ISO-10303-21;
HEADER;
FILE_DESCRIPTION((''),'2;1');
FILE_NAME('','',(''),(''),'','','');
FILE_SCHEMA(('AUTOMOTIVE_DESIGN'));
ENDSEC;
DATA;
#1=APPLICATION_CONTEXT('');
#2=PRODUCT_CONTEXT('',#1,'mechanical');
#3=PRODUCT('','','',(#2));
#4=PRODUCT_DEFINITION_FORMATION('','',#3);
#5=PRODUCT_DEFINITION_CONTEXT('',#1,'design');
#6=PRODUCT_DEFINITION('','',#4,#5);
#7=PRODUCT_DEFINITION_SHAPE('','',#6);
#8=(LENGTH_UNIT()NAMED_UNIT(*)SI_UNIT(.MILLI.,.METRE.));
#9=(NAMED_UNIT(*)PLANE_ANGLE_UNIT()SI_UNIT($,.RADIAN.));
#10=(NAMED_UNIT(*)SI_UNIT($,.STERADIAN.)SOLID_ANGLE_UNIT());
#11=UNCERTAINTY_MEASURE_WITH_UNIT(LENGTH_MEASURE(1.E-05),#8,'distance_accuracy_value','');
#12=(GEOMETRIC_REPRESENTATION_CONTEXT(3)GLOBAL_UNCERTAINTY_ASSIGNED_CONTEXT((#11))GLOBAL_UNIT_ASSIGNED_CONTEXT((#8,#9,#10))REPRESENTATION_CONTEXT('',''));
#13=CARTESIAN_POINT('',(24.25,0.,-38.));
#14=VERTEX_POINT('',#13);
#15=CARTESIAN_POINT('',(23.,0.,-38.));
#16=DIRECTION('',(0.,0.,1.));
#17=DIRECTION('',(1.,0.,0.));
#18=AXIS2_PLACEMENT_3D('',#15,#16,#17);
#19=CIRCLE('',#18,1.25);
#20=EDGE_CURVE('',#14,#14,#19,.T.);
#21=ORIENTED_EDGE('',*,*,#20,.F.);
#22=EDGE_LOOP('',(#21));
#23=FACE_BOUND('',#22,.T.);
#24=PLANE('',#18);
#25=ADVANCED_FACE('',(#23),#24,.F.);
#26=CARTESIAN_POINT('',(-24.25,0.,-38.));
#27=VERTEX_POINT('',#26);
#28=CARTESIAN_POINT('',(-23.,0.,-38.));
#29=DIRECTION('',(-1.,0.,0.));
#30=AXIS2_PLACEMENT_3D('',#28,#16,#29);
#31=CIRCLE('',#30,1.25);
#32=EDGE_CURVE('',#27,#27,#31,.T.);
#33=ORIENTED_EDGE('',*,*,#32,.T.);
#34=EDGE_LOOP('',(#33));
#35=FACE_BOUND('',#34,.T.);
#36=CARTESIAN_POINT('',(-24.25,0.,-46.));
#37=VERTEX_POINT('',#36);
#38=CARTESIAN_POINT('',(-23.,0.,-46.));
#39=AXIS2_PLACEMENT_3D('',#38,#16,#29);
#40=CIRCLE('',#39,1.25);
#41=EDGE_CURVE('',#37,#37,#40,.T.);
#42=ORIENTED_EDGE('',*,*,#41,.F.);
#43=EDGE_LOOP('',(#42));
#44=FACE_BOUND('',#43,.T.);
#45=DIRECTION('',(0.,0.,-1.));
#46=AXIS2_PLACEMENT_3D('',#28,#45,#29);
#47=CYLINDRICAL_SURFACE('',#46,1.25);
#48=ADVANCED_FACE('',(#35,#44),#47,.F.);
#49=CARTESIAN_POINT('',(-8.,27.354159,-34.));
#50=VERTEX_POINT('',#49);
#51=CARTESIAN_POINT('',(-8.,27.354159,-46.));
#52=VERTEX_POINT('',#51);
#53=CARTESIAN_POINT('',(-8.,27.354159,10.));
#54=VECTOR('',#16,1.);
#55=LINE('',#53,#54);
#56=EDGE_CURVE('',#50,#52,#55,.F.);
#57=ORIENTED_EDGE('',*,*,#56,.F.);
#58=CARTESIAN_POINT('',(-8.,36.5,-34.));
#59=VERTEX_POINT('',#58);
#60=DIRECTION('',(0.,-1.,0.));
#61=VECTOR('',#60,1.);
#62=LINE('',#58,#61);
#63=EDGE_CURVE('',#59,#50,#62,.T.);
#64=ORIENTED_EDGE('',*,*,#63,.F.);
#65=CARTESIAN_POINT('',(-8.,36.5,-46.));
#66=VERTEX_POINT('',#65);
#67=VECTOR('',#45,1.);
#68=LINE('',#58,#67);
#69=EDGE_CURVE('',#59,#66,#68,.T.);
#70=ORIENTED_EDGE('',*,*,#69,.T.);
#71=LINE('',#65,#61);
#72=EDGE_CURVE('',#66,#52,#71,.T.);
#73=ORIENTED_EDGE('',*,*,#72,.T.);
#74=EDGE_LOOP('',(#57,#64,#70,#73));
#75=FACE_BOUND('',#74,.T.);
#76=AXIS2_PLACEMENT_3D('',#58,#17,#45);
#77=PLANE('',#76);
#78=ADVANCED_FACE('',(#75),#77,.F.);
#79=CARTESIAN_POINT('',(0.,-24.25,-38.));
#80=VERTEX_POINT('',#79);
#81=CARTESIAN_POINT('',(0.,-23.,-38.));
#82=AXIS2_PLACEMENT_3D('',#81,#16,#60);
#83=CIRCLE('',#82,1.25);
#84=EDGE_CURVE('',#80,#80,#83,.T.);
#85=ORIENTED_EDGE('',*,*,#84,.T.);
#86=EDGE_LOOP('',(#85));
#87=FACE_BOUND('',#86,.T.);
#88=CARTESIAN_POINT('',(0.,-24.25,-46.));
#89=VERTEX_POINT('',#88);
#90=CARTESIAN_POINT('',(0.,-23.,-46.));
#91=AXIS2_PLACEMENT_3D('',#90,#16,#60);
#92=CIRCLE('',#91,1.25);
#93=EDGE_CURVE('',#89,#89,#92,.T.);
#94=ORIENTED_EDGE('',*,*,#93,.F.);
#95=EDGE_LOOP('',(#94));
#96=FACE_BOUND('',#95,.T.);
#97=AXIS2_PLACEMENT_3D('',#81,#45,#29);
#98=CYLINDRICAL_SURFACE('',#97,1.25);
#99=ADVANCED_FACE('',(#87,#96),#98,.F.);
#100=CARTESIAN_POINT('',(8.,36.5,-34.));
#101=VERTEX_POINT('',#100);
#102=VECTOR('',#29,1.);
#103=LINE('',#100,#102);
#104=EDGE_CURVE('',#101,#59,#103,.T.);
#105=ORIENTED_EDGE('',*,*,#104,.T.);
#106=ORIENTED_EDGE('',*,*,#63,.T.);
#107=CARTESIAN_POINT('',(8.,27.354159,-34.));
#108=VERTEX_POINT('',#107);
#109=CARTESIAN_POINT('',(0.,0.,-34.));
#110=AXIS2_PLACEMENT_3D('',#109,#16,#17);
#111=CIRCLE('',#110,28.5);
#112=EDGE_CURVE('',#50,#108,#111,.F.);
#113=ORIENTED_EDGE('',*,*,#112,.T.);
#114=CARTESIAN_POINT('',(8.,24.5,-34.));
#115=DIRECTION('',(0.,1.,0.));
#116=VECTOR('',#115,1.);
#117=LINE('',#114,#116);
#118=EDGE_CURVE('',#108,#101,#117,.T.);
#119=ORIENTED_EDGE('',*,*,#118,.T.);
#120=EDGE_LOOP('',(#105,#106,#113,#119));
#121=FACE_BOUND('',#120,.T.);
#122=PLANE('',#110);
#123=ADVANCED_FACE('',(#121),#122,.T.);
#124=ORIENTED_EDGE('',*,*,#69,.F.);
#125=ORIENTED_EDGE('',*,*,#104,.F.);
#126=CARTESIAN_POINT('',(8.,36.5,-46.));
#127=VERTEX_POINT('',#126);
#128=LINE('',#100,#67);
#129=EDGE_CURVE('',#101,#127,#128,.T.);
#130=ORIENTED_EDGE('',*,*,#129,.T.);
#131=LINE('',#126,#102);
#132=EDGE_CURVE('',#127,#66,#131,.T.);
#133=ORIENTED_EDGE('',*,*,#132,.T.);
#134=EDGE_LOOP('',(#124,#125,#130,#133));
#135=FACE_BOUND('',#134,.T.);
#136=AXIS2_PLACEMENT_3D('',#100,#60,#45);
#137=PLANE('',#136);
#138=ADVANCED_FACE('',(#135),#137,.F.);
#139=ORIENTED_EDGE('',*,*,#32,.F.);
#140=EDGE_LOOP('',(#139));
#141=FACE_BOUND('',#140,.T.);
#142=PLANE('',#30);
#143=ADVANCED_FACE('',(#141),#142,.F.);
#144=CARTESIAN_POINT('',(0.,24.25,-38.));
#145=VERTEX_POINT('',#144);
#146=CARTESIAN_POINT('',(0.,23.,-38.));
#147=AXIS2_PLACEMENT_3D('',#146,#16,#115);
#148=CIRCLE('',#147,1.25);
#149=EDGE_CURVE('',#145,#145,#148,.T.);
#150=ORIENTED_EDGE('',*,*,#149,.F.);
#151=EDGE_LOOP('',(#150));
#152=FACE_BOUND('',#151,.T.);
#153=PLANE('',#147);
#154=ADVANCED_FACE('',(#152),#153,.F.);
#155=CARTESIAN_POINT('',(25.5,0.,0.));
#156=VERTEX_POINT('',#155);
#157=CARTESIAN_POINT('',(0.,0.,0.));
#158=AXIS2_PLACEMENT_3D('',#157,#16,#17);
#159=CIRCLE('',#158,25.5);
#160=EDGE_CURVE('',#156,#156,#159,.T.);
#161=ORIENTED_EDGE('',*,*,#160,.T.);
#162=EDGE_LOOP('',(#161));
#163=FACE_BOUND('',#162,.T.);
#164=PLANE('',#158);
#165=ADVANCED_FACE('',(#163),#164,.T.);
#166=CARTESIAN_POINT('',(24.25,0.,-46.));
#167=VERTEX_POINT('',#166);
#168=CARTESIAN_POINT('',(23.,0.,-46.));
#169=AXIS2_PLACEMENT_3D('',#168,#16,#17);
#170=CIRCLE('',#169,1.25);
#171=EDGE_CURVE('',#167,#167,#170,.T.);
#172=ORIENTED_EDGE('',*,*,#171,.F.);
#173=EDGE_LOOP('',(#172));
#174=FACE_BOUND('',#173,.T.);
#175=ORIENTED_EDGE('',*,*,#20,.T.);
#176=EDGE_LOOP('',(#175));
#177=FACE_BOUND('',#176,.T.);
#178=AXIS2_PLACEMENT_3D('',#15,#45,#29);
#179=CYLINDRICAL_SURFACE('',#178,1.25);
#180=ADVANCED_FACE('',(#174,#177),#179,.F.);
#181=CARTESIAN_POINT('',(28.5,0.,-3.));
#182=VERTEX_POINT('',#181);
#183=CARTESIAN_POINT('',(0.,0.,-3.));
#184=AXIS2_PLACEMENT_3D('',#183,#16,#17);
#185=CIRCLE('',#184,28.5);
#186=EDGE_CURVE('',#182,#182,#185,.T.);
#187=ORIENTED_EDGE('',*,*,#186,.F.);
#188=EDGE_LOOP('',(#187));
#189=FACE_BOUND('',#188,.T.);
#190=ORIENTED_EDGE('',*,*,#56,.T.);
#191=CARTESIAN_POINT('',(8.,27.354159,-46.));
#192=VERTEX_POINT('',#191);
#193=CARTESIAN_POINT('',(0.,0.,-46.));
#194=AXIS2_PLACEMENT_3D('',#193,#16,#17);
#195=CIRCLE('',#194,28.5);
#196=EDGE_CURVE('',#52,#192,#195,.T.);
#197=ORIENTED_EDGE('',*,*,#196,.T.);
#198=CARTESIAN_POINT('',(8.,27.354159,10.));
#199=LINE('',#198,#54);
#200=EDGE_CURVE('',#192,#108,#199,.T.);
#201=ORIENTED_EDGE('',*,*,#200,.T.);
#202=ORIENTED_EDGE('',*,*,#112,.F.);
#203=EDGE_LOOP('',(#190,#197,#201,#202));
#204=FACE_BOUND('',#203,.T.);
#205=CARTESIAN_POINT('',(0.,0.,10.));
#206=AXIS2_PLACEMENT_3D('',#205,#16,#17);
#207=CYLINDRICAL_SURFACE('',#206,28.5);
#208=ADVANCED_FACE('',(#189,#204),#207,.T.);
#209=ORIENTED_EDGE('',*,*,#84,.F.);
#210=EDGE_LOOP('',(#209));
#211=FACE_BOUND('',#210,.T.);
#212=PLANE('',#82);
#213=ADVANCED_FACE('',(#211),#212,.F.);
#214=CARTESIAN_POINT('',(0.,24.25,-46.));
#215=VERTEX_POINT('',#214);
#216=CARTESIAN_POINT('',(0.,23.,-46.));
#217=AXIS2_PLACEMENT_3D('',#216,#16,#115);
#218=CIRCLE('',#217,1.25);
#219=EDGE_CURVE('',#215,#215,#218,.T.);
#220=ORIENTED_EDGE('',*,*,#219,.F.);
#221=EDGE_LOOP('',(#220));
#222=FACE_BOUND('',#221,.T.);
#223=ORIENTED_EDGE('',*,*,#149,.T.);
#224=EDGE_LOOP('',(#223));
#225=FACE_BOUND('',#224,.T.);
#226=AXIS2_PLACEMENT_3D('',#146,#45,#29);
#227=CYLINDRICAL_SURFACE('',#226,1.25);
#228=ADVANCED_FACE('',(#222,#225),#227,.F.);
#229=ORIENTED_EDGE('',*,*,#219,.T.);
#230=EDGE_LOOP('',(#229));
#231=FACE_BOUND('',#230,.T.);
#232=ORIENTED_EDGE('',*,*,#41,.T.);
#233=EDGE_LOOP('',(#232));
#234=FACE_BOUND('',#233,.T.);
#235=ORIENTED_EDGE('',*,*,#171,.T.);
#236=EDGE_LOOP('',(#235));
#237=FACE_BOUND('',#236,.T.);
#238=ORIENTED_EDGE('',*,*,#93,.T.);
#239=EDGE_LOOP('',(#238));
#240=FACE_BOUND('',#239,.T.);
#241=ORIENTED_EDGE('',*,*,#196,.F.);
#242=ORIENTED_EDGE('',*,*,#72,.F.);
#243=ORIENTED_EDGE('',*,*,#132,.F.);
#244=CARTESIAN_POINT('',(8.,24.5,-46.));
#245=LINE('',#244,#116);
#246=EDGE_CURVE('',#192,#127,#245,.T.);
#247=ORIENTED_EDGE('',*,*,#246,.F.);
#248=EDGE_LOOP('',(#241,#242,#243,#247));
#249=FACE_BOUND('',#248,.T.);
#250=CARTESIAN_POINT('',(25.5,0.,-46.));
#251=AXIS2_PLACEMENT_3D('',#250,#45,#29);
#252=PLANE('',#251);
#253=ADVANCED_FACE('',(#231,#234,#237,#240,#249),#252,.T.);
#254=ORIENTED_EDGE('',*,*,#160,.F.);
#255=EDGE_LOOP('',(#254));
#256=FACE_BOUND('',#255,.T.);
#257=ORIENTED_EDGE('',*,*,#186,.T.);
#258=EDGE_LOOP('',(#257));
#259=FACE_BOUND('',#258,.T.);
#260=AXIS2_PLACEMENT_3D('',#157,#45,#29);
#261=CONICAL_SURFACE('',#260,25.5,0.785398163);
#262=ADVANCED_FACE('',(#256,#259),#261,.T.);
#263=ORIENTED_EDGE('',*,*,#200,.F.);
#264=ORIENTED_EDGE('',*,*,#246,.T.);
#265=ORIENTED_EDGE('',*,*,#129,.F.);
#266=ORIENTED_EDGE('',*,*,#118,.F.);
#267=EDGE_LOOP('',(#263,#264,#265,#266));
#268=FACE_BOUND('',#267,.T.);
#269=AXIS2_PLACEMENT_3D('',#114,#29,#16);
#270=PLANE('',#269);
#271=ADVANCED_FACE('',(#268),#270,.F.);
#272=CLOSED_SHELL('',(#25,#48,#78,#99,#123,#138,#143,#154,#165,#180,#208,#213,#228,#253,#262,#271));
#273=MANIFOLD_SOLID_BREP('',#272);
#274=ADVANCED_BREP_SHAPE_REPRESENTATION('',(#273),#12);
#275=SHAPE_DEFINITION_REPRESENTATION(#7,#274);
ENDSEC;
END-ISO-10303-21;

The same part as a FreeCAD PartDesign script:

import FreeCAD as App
import Part
import Sketcher
Q = App.Units.Quantity

doc = App.newDocument("Part")
params = doc.addObject("Spreadsheet::Sheet", "Params")
for row, (alias, value) in enumerate([
    ("sketch1_height", "43 mm"),
    ("sketch1_height2", "46 mm"),
    ("sketch1_width", "25.5 mm"),
    ("revolution_angle", "360 deg"),
    ("sketch2_diameter", "2.5 mm"),
    ("pocket1_length", "8 mm"),
    ("sketch3_width", "16 mm"),
    ("sketch3_height", "12 mm"),
    ("pad1_length", "12 mm"),
], start=1):
    params.set(f"A{row}", alias)
    params.set(f"B{row}", "=" + value)
    params.setAlias(f"B{row}", alias)

body = doc.addObject("PartDesign::Body", "Body")

# Sketch on XZ plane
sketch1 = body.newObject("Sketcher::SketchObject", "Sketch")
sketch1.AttachmentSupport = (doc.getObject("XZ_Plane"), [""])
sketch1.MapMode = "FlatFace"
sketch1.addGeometry([
    Part.LineSegment(App.Vector(0, 0, 0), App.Vector(25.5, 0, 0)),  # 0
    Part.LineSegment(App.Vector(25.5, 0, 0), App.Vector(28.5, -3, 0)),  # 1
    Part.LineSegment(App.Vector(28.5, -3, 0), App.Vector(28.5, -46, 0)),  # 2
    Part.LineSegment(App.Vector(28.5, -46, 0), App.Vector(0, -46, 0)),  # 3
    Part.LineSegment(App.Vector(0, -46, 0), App.Vector(0, 0, 0)),  # 4
], False)
sketch1.addConstraint([
    Sketcher.Constraint("Coincident", 0, 2, 1, 1),
    Sketcher.Constraint("Coincident", 1, 2, 2, 1),
    Sketcher.Constraint("Coincident", 2, 2, 3, 1),
    Sketcher.Constraint("Coincident", 3, 2, 4, 1),
    Sketcher.Constraint("Coincident", 4, 2, 0, 1),
    Sketcher.Constraint("Horizontal", 0),
    Sketcher.Constraint("Vertical", 2),
    Sketcher.Constraint("Horizontal", 3),
    Sketcher.Constraint("Vertical", 4),
    Sketcher.Constraint("Coincident", 4, 2, -1, 1),
    Sketcher.Constraint("DistanceY", 2, 2, 2, 1, 43.0),
    Sketcher.Constraint("DistanceY", 4, 1, 4, 2, 46.0),
    Sketcher.Constraint("Angle", 1, Q("-45 deg")),
    Sketcher.Constraint("DistanceX", 0, 1, 0, 2, 25.5),
])
sketch1.setExpression("Constraints[10]", "Params.sketch1_height")
sketch1.setExpression("Constraints[11]", "Params.sketch1_height2")
sketch1.setExpression("Constraints[13]", "Params.sketch1_width")
revolution = body.newObject("PartDesign::Revolution", "Revolution")
revolution.Profile = sketch1
revolution.ReferenceAxis = (sketch1, ["V_Axis"])
revolution.setExpression("Angle", "Params.revolution_angle")

# Sketch on XY plane
sketch2 = body.newObject("Sketcher::SketchObject", "Sketch001")
sketch2.AttachmentSupport = (doc.getObject("XY_Plane"), [""])
sketch2.MapMode = "FlatFace"
sketch2.AttachmentOffset = App.Placement(App.Vector(0, 0, -46), App.Rotation())
sketch2.addGeometry(Part.Circle(App.Vector(23, 0, 0), App.Vector(0, 0, 1), 1.2), False)
sketch2.addConstraint([
    Sketcher.Constraint("PointOnObject", 0, 3, -1),
    Sketcher.Constraint("Diameter", 0, 2.5),
    Sketcher.Constraint("DistanceX", -1, 1, 0, 3, 23.0),
])
sketch2.setExpression("Constraints[1]", "Params.sketch2_diameter")
pocket1 = body.newObject("PartDesign::Pocket", "Pocket")
pocket1.Profile = sketch2
pocket1.setExpression("Length", "Params.pocket1_length")
pocket1.Reversed = True
doc.recompute()

polarpattern = body.newObject("PartDesign::PolarPattern", "PolarPattern")
polarpattern.Originals = [pocket1]
polarpattern.Axis = (doc.getObject("Z_Axis"), [""])
polarpattern.Angle = 360
polarpattern.Occurrences = 4
body.Tip = polarpattern

# Sketch on XY plane
sketch3 = body.newObject("Sketcher::SketchObject", "Sketch002")
sketch3.AttachmentSupport = (doc.getObject("XY_Plane"), [""])
sketch3.MapMode = "FlatFace"
sketch3.AttachmentOffset = App.Placement(App.Vector(0, 0, -46), App.Rotation())
sketch3.addGeometry([
    Part.LineSegment(App.Vector(-8, 36, 0), App.Vector(-8, 24, 0)),
    Part.LineSegment(App.Vector(-8, 24, 0), App.Vector(8, 24, 0)),
    Part.LineSegment(App.Vector(8, 24, 0), App.Vector(8, 36, 0)),
    Part.LineSegment(App.Vector(8, 36, 0), App.Vector(-8, 36, 0)),
], False)
sketch3.addConstraint([
    Sketcher.Constraint("Coincident", 0, 2, 1, 1),
    Sketcher.Constraint("Coincident", 1, 2, 2, 1),
    Sketcher.Constraint("Coincident", 2, 2, 3, 1),
    Sketcher.Constraint("Coincident", 3, 2, 0, 1),
    Sketcher.Constraint("Vertical", 0),
    Sketcher.Constraint("Horizontal", 1),
    Sketcher.Constraint("Vertical", 2),
    Sketcher.Constraint("Horizontal", 3),
    Sketcher.Constraint("DistanceX", 1, 1, 1, 2, 16.0),
    Sketcher.Constraint("DistanceY", 0, 2, 0, 1, 12.0),
    Sketcher.Constraint("DistanceX", 0, 2, -1, 1, 8.0),
    Sketcher.Constraint("DistanceY", -1, 1, 0, 2, 24.5),
])
sketch3.setExpression("Constraints[8]", "Params.sketch3_width")
sketch3.setExpression("Constraints[9]", "Params.sketch3_height")
pad1 = body.newObject("PartDesign::Pad", "Pad")
pad1.Profile = sketch3
pad1.setExpression("Length", "Params.pad1_length")

doc.recompute()
